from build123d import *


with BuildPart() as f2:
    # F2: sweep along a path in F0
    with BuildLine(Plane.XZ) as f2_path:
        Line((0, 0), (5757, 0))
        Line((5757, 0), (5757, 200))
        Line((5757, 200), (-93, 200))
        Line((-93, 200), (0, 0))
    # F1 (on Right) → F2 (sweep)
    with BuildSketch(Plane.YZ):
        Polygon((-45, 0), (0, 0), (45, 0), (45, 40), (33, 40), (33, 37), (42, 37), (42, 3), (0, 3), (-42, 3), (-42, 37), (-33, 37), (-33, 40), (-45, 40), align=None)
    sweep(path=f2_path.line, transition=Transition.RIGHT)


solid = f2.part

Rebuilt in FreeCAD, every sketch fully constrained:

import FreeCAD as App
import Part
import Sketcher

V = App.Vector
Q = App.Units.Quantity

doc = App.newDocument("Part")
body = doc.addObject("PartDesign::Body", "Body")

# Sketch on YZ plane
sketch1 = body.newObject("Sketcher::SketchObject", "Sketch")
sketch1.AttachmentSupport = (doc.getObject("YZ_Plane"), [""])
sketch1.MapMode = "FlatFace"
sketch1.addGeometry(Part.LineSegment(V(-45, 0, 0), V(45, 0, 0)), False)
sketch1.addGeometry(Part.LineSegment(V(45, 0, 0), V(45, 40, 0)), False)
sketch1.addGeometry(Part.LineSegment(V(45, 40, 0), V(33, 40, 0)), False)
sketch1.addGeometry(Part.LineSegment(V(33, 40, 0), V(33, 37, 0)), False)
sketch1.addGeometry(Part.LineSegment(V(33, 37, 0), V(42, 37, 0)), False)
sketch1.addGeometry(Part.LineSegment(V(42, 37, 0), V(42, 3, 0)), False)
sketch1.addGeometry(Part.LineSegment(V(42, 3, 0), V(-42, 3, 0)), False)
sketch1.addGeometry(Part.LineSegment(V(-42, 3, 0), V(-42, 37, 0)), False)
sketch1.addGeometry(Part.LineSegment(V(-42, 37, 0), V(-33, 37, 0)), False)
sketch1.addGeometry(Part.LineSegment(V(-33, 37, 0), V(-33, 40, 0)), False)
sketch1.addGeometry(Part.LineSegment(V(-33, 40, 0), V(-45, 40, 0)), False)
sketch1.addGeometry(Part.LineSegment(V(-45, 40, 0), V(-45, 0, 0)), False)
sketch1.addConstraint(Sketcher.Constraint("Coincident", 0, 2, 1, 1))
sketch1.addConstraint(Sketcher.Constraint("Coincident", 1, 2, 2, 1))
sketch1.addConstraint(Sketcher.Constraint("Coincident", 2, 2, 3, 1))
sketch1.addConstraint(Sketcher.Constraint("Coincident", 3, 2, 4, 1))
sketch1.addConstraint(Sketcher.Constraint("Coincident", 4, 2, 5, 1))
sketch1.addConstraint(Sketcher.Constraint("Coincident", 5, 2, 6, 1))
sketch1.addConstraint(Sketcher.Constraint("Coincident", 6, 2, 7, 1))
sketch1.addConstraint(Sketcher.Constraint("Coincident", 7, 2, 8, 1))
sketch1.addConstraint(Sketcher.Constraint("Coincident", 8, 2, 9, 1))
sketch1.addConstraint(Sketcher.Constraint("Coincident", 9, 2, 10, 1))
sketch1.addConstraint(Sketcher.Constraint("Coincident", 10, 2, 11, 1))
sketch1.addConstraint(Sketcher.Constraint("Coincident", 11, 2, 0, 1))
sketch1.addConstraint(Sketcher.Constraint("Horizontal", 0))
sketch1.addConstraint(Sketcher.Constraint("Vertical", 1))
sketch1.addConstraint(Sketcher.Constraint("Horizontal", 2))
sketch1.addConstraint(Sketcher.Constraint("Vertical", 3))
sketch1.addConstraint(Sketcher.Constraint("Horizontal", 4))
sketch1.addConstraint(Sketcher.Constraint("Vertical", 5))
sketch1.addConstraint(Sketcher.Constraint("Horizontal", 6))
sketch1.addConstraint(Sketcher.Constraint("Vertical", 7))
sketch1.addConstraint(Sketcher.Constraint("Horizontal", 8))
sketch1.addConstraint(Sketcher.Constraint("Vertical", 9))
sketch1.addConstraint(Sketcher.Constraint("Horizontal", 10))
sketch1.addConstraint(Sketcher.Constraint("Vertical", 11))
sketch1.addConstraint(Sketcher.Constraint("Symmetric", 0, 2, 11, 2, -1, 1))
sketch1.addConstraint(Sketcher.Constraint("Symmetric", 4, 2, 7, 2, -2))
sketch1.addConstraint(Sketcher.Constraint("Symmetric", 2, 2, 9, 2, -2))
sketch1.addConstraint(Sketcher.Constraint("DistanceX", 0, 1, 0, 2, Q("90 mm")))
sketch1.addConstraint(Sketcher.Constraint("DistanceX", 2, 2, 2, 1, Q("12 mm")))
sketch1.addConstraint(Sketcher.Constraint("DistanceX", 4, 1, 4, 2, Q("9 mm")))
sketch1.addConstraint(Sketcher.Constraint("DistanceY", 1, 1, 1, 2, Q("40 mm")))
sketch1.addConstraint(Sketcher.Constraint("DistanceY", 3, 2, 3, 1, Q("3 mm")))
sketch1.addConstraint(Sketcher.Constraint("DistanceY", 5, 2, 5, 1, Q("34 mm")))

# Sketch on XZ plane
sketch2 = body.newObject("Sketcher::SketchObject", "Sketch001")
sketch2.AttachmentSupport = (doc.getObject("XZ_Plane"), [""])
sketch2.MapMode = "FlatFace"
sketch2.addGeometry(Part.LineSegment(V(0, 0, 0), V(5757, 0, 0)), False)
sketch2.addGeometry(Part.LineSegment(V(5757, 0, 0), V(5757, 200, 0)), False)
sketch2.addGeometry(Part.LineSegment(V(5757, 200, 0), V(-93, 200, 0)), False)
sketch2.addGeometry(Part.LineSegment(V(-93, 200, 0), V(0, 0, 0)), False)
sketch2.addConstraint(Sketcher.Constraint("Coincident", 0, 2, 1, 1))
sketch2.addConstraint(Sketcher.Constraint("Coincident", 1, 2, 2, 1))
sketch2.addConstraint(Sketcher.Constraint("Coincident", 2, 2, 3, 1))
sketch2.addConstraint(Sketcher.Constraint("Coincident", 3, 2, 0, 1))
sketch2.addConstraint(Sketcher.Constraint("Horizontal", 0))
sketch2.addConstraint(Sketcher.Constraint("Vertical", 1))
sketch2.addConstraint(Sketcher.Constraint("Horizontal", 2))
sketch2.addConstraint(Sketcher.Constraint("Coincident", 3, 2, -1, 1))
sketch2.addConstraint(Sketcher.Constraint("DistanceX", 0, 1, 0, 2, Q("5757 mm")))
sketch2.addConstraint(Sketcher.Constraint("DistanceX", 2, 2, 2, 1, Q("5850 mm")))
sketch2.addConstraint(Sketcher.Constraint("DistanceY", 1, 1, 1, 2, Q("200 mm")))
doc.recompute()

additivepipe = body.newObject("PartDesign::AdditivePipe", "AdditivePipe")
additivepipe.Profile = sketch1
additivepipe.Spine = (sketch2, ["Edge1", "Edge2", "Edge3", "Edge4"])
additivepipe.Transition = "Right corner"

doc.recompute()
